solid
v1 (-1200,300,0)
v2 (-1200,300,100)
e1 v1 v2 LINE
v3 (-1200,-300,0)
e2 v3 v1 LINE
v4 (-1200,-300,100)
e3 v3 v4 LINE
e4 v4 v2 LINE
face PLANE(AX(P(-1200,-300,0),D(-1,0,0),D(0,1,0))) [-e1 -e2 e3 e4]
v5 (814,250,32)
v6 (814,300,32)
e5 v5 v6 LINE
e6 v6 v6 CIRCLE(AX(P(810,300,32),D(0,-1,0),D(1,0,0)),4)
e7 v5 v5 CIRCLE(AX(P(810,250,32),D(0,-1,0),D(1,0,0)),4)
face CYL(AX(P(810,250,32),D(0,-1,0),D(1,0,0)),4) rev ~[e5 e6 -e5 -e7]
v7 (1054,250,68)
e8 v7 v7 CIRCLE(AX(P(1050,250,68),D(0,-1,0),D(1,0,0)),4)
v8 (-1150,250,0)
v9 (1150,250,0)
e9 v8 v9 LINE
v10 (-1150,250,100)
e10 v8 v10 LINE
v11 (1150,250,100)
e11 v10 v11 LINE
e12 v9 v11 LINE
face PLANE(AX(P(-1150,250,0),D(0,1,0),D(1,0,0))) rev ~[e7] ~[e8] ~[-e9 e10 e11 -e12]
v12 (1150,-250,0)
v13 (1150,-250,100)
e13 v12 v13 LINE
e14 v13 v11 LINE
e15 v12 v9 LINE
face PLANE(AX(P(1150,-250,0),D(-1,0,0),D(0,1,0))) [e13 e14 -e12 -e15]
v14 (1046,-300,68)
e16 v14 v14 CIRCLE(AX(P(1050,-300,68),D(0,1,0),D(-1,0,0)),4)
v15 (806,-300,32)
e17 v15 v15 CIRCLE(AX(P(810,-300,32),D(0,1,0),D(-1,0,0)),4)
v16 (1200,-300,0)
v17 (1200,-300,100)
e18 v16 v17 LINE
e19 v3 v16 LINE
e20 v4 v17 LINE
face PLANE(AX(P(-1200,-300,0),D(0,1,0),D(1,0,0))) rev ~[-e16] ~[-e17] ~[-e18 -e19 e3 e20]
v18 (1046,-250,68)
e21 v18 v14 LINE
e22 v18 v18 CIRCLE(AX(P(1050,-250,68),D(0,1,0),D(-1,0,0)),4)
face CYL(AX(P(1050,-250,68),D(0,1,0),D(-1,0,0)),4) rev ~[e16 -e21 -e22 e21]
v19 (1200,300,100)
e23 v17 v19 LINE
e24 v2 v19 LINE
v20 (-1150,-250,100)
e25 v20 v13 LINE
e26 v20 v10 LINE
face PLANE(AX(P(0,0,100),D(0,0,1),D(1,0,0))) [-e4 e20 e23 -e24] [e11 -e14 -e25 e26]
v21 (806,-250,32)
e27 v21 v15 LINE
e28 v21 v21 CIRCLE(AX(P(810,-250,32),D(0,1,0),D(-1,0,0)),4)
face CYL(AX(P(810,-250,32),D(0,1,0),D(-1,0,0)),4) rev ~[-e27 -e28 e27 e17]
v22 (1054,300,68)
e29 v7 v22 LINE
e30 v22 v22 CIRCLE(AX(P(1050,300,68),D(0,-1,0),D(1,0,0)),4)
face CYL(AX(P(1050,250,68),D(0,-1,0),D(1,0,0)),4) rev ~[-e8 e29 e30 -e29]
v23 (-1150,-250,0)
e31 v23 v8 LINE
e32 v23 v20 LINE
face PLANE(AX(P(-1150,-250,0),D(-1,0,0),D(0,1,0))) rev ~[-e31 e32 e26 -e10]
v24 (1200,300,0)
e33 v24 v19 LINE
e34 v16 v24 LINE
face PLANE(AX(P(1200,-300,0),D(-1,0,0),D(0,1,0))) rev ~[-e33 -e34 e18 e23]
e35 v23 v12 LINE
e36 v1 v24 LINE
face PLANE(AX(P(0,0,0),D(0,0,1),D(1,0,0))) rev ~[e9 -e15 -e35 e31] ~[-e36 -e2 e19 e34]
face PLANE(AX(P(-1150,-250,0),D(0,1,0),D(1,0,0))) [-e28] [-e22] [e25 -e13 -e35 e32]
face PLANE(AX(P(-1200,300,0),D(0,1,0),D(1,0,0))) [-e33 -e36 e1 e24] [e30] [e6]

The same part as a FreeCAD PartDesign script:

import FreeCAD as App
import Part
import Sketcher

V = App.Vector

doc = App.newDocument("Part")
body = doc.addObject("PartDesign::Body", "Body")

# Sketch on XY plane
sketch1 = body.newObject("Sketcher::SketchObject", "Sketch")
sketch1.AttachmentSupport = (doc.getObject("XY_Plane"), [""])
sketch1.MapMode = "FlatFace"
sketch1.addGeometry([
    Part.LineSegment(V(-1200, 300, 0), V(-1200, -300, 0)),  # 0
    Part.LineSegment(V(-1200, -300, 0), V(1200, -300, 0)),  # 1
    Part.LineSegment(V(1200, -300, 0), V(1200, 300, 0)),  # 2
    Part.LineSegment(V(1200, 300, 0), V(-1200, 300, 0)),  # 3
    Part.LineSegment(V(1150, -250, 0), V(-1150, -250, 0)),  # 4
    Part.LineSegment(V(-1150, -250, 0), V(-1150, 250, 0)),  # 5
    Part.LineSegment(V(-1150, 250, 0), V(1150, 250, 0)),  # 6
    Part.LineSegment(V(1150, 250, 0), V(1150, -250, 0)),  # 7
], False)
sketch1.addConstraint([
    Sketcher.Constraint("Coincident", 0, 2, 1, 1),
    Sketcher.Constraint("Coincident", 1, 2, 2, 1),
    Sketcher.Constraint("Coincident", 2, 2, 3, 1),
    Sketcher.Constraint("Coincident", 3, 2, 0, 1),
    Sketcher.Constraint("Coincident", 4, 2, 5, 1),
    Sketcher.Constraint("Coincident", 5, 2, 6, 1),
    Sketcher.Constraint("Coincident", 6, 2, 7, 1),
    Sketcher.Constraint("Coincident", 7, 2, 4, 1),
    Sketcher.Constraint("Vertical", 0),
    Sketcher.Constraint("Horizontal", 1),
    Sketcher.Constraint("Vertical", 2),
    Sketcher.Constraint("Horizontal", 3),
    Sketcher.Constraint("Horizontal", 4),
    Sketcher.Constraint("Vertical", 5),
    Sketcher.Constraint("Horizontal", 6),
    Sketcher.Constraint("Vertical", 7),
    Sketcher.Constraint("Symmetric", 0, 2, 2, 2, -1, 1),
    Sketcher.Constraint("Symmetric", 4, 2, 6, 2, -1, 1),
    Sketcher.Constraint("DistanceX", 1, 1, 1, 2, 2400.0),
    Sketcher.Constraint("DistanceX", 4, 2, 4, 1, 2300.0),
    Sketcher.Constraint("DistanceY", 0, 2, 0, 1, 600.0),
    Sketcher.Constraint("DistanceY", 5, 1, 5, 2, 500.0),
])
pad1 = body.newObject("PartDesign::Pad", "Pad")
pad1.Profile = sketch1
pad1.Length = 100

# Sketch on XZ plane
sketch2 = body.newObject("Sketcher::SketchObject", "Sketch001")
sketch2.AttachmentSupport = (doc.getObject("XZ_Plane"), [""])
sketch2.MapMode = "FlatFace"
sketch2.AttachmentOffset = App.Placement(V(0, 0, -250), App.Rotation())
sketch2.addGeometry([
    Part.Circle(V(810, 32, 0), V(0, 0, 1), 4),
    Part.Circle(V(1050, 68, 0), V(0, 0, 1), 4),
], False)
sketch2.addConstraint([
    Sketcher.Constraint("Equal", 0, 1),
    Sketcher.Constraint("Diameter", 0, 8.0),
    Sketcher.Constraint("DistanceX", -1, 1, 0, 3, 810.0),
    Sketcher.Constraint("DistanceY", -1, 1, 0, 3, 32.0),
    Sketcher.Constraint("DistanceX", -1, 1, 1, 3, 1050.0),
    Sketcher.Constraint("DistanceY", -1, 1, 1, 3, 68.0),
])
pocket1 = body.newObject("PartDesign::Pocket", "Pocket")
pocket1.Profile = sketch2
pocket1.Type = "ThroughAll"

# Sketch on XZ plane
sketch3 = body.newObject("Sketcher::SketchObject", "Sketch002")
sketch3.AttachmentSupport = (doc.getObject("XZ_Plane"), [""])
sketch3.MapMode = "FlatFace"
sketch3.AttachmentOffset = App.Placement(V(0, 0, 250), App.Rotation())
sketch3.addGeometry([
    Part.Circle(V(810, 32, 0), V(0, 0, 1), 4),
    Part.Circle(V(1050, 68, 0), V(0, 0, 1), 4),
], False)
sketch3.addConstraint([
    Sketcher.Constraint("Equal", 0, 1),
    Sketcher.Constraint("Diameter", 0, 8.0),
    Sketcher.Constraint("DistanceX", -1, 1, 0, 3, 810.0),
    Sketcher.Constraint("DistanceY", -1, 1, 0, 3, 32.0),
    Sketcher.Constraint("DistanceX", -1, 1, 1, 3, 1050.0),
    Sketcher.Constraint("DistanceY", -1, 1, 1, 3, 68.0),
])
pocket2 = body.newObject("PartDesign::Pocket", "Pocket001")
pocket2.Profile = sketch3
pocket2.Type = "ThroughAll"
pocket2.Reversed = True

doc.recompute()
